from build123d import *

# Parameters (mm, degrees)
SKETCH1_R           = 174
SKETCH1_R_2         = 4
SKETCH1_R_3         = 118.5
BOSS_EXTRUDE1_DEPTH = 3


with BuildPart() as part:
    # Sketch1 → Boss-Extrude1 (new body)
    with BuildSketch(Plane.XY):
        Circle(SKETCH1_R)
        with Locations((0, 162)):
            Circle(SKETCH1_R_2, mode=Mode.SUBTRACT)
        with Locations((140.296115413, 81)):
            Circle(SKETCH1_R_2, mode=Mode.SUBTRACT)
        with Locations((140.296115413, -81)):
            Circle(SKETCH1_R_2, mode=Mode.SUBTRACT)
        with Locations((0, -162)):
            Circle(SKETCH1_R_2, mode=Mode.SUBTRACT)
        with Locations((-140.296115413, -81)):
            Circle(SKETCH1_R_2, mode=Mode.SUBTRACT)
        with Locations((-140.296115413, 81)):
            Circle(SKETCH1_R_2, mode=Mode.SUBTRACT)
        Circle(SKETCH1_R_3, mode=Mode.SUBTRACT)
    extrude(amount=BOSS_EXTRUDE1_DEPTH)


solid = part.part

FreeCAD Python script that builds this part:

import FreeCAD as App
import Part
import Sketcher

doc = App.newDocument("Part")
body = doc.addObject("PartDesign::Body", "Body")

# Sketch on XY plane
sketch1 = doc.addObject("Sketcher::SketchObject", "Sketch")
body.addObject(sketch1)
sketch1.AttachmentSupport = (doc.XY_Plane, [""])
sketch1.MapMode = "FlatFace"
sketch1.addGeometry([
    Part.Circle(App.Vector(0, 0, 0), App.Vector(0, 0, 1), 174),  # 0
    Part.Circle(App.Vector(-140.296115, -81, 0), App.Vector(0, 0, 1), 4),  # 1
    Part.Circle(App.Vector(0, -162, 0), App.Vector(0, 0, 1), 4),  # 2
    Part.Circle(App.Vector(140.296115, -81, 0), App.Vector(0, 0, 1), 4),  # 3
    Part.Circle(App.Vector(-140.296115, 81, 0), App.Vector(0, 0, 1), 4),  # 4
    Part.Circle(App.Vector(0, 0, 0), App.Vector(0, 0, 1), 118.5),  # 5
    Part.Circle(App.Vector(140.296115, 81, 0), App.Vector(0, 0, 1), 4),  # 6
    Part.Circle(App.Vector(0, 162, 0), App.Vector(0, 0, 1), 4),  # 7
], False)
sketch1.addConstraint([
    Sketcher.Constraint("Coincident", 0, 3, -1, 1),
    Sketcher.Constraint("Coincident", 5, 3, -1, 1),
    Sketcher.Constraint("Equal", 1, 2),
    Sketcher.Constraint("Equal", 2, 3),
    Sketcher.Constraint("Equal", 3, 4),
    Sketcher.Constraint("Equal", 4, 6),
    Sketcher.Constraint("Equal", 6, 7),
    Sketcher.Constraint("Symmetric", 3, 3, 4, 3, -1, 1),
    Sketcher.Constraint("Symmetric", 1, 3, 6, 3, -1, 1),
    Sketcher.Constraint("Symmetric", 2, 3, 7, 3, -1, 1),
    Sketcher.Constraint("Symmetric", 1, 3, 3, 3, -2),
    Sketcher.Constraint("PointOnObject", 2, 3, -2),
    Sketcher.Constraint("Diameter", 0, 348.0),
    Sketcher.Constraint("Diameter", 1, 8.0),
    Sketcher.Constraint("Diameter", 5, 237.0),
    Sketcher.Constraint("DistanceY", 1, 3, -1, 1, 81.0),
    Sketcher.Constraint("DistanceY", 2, 3, -1, 1, 162.0),
    Sketcher.Constraint("DistanceX", 1, 3, 3, 3, 280.592231),
])
pad1 = doc.addObject("PartDesign::Pad", "Pad")
body.addObject(pad1)
pad1.Profile = sketch1
pad1.Length = 3

doc.recompute()
